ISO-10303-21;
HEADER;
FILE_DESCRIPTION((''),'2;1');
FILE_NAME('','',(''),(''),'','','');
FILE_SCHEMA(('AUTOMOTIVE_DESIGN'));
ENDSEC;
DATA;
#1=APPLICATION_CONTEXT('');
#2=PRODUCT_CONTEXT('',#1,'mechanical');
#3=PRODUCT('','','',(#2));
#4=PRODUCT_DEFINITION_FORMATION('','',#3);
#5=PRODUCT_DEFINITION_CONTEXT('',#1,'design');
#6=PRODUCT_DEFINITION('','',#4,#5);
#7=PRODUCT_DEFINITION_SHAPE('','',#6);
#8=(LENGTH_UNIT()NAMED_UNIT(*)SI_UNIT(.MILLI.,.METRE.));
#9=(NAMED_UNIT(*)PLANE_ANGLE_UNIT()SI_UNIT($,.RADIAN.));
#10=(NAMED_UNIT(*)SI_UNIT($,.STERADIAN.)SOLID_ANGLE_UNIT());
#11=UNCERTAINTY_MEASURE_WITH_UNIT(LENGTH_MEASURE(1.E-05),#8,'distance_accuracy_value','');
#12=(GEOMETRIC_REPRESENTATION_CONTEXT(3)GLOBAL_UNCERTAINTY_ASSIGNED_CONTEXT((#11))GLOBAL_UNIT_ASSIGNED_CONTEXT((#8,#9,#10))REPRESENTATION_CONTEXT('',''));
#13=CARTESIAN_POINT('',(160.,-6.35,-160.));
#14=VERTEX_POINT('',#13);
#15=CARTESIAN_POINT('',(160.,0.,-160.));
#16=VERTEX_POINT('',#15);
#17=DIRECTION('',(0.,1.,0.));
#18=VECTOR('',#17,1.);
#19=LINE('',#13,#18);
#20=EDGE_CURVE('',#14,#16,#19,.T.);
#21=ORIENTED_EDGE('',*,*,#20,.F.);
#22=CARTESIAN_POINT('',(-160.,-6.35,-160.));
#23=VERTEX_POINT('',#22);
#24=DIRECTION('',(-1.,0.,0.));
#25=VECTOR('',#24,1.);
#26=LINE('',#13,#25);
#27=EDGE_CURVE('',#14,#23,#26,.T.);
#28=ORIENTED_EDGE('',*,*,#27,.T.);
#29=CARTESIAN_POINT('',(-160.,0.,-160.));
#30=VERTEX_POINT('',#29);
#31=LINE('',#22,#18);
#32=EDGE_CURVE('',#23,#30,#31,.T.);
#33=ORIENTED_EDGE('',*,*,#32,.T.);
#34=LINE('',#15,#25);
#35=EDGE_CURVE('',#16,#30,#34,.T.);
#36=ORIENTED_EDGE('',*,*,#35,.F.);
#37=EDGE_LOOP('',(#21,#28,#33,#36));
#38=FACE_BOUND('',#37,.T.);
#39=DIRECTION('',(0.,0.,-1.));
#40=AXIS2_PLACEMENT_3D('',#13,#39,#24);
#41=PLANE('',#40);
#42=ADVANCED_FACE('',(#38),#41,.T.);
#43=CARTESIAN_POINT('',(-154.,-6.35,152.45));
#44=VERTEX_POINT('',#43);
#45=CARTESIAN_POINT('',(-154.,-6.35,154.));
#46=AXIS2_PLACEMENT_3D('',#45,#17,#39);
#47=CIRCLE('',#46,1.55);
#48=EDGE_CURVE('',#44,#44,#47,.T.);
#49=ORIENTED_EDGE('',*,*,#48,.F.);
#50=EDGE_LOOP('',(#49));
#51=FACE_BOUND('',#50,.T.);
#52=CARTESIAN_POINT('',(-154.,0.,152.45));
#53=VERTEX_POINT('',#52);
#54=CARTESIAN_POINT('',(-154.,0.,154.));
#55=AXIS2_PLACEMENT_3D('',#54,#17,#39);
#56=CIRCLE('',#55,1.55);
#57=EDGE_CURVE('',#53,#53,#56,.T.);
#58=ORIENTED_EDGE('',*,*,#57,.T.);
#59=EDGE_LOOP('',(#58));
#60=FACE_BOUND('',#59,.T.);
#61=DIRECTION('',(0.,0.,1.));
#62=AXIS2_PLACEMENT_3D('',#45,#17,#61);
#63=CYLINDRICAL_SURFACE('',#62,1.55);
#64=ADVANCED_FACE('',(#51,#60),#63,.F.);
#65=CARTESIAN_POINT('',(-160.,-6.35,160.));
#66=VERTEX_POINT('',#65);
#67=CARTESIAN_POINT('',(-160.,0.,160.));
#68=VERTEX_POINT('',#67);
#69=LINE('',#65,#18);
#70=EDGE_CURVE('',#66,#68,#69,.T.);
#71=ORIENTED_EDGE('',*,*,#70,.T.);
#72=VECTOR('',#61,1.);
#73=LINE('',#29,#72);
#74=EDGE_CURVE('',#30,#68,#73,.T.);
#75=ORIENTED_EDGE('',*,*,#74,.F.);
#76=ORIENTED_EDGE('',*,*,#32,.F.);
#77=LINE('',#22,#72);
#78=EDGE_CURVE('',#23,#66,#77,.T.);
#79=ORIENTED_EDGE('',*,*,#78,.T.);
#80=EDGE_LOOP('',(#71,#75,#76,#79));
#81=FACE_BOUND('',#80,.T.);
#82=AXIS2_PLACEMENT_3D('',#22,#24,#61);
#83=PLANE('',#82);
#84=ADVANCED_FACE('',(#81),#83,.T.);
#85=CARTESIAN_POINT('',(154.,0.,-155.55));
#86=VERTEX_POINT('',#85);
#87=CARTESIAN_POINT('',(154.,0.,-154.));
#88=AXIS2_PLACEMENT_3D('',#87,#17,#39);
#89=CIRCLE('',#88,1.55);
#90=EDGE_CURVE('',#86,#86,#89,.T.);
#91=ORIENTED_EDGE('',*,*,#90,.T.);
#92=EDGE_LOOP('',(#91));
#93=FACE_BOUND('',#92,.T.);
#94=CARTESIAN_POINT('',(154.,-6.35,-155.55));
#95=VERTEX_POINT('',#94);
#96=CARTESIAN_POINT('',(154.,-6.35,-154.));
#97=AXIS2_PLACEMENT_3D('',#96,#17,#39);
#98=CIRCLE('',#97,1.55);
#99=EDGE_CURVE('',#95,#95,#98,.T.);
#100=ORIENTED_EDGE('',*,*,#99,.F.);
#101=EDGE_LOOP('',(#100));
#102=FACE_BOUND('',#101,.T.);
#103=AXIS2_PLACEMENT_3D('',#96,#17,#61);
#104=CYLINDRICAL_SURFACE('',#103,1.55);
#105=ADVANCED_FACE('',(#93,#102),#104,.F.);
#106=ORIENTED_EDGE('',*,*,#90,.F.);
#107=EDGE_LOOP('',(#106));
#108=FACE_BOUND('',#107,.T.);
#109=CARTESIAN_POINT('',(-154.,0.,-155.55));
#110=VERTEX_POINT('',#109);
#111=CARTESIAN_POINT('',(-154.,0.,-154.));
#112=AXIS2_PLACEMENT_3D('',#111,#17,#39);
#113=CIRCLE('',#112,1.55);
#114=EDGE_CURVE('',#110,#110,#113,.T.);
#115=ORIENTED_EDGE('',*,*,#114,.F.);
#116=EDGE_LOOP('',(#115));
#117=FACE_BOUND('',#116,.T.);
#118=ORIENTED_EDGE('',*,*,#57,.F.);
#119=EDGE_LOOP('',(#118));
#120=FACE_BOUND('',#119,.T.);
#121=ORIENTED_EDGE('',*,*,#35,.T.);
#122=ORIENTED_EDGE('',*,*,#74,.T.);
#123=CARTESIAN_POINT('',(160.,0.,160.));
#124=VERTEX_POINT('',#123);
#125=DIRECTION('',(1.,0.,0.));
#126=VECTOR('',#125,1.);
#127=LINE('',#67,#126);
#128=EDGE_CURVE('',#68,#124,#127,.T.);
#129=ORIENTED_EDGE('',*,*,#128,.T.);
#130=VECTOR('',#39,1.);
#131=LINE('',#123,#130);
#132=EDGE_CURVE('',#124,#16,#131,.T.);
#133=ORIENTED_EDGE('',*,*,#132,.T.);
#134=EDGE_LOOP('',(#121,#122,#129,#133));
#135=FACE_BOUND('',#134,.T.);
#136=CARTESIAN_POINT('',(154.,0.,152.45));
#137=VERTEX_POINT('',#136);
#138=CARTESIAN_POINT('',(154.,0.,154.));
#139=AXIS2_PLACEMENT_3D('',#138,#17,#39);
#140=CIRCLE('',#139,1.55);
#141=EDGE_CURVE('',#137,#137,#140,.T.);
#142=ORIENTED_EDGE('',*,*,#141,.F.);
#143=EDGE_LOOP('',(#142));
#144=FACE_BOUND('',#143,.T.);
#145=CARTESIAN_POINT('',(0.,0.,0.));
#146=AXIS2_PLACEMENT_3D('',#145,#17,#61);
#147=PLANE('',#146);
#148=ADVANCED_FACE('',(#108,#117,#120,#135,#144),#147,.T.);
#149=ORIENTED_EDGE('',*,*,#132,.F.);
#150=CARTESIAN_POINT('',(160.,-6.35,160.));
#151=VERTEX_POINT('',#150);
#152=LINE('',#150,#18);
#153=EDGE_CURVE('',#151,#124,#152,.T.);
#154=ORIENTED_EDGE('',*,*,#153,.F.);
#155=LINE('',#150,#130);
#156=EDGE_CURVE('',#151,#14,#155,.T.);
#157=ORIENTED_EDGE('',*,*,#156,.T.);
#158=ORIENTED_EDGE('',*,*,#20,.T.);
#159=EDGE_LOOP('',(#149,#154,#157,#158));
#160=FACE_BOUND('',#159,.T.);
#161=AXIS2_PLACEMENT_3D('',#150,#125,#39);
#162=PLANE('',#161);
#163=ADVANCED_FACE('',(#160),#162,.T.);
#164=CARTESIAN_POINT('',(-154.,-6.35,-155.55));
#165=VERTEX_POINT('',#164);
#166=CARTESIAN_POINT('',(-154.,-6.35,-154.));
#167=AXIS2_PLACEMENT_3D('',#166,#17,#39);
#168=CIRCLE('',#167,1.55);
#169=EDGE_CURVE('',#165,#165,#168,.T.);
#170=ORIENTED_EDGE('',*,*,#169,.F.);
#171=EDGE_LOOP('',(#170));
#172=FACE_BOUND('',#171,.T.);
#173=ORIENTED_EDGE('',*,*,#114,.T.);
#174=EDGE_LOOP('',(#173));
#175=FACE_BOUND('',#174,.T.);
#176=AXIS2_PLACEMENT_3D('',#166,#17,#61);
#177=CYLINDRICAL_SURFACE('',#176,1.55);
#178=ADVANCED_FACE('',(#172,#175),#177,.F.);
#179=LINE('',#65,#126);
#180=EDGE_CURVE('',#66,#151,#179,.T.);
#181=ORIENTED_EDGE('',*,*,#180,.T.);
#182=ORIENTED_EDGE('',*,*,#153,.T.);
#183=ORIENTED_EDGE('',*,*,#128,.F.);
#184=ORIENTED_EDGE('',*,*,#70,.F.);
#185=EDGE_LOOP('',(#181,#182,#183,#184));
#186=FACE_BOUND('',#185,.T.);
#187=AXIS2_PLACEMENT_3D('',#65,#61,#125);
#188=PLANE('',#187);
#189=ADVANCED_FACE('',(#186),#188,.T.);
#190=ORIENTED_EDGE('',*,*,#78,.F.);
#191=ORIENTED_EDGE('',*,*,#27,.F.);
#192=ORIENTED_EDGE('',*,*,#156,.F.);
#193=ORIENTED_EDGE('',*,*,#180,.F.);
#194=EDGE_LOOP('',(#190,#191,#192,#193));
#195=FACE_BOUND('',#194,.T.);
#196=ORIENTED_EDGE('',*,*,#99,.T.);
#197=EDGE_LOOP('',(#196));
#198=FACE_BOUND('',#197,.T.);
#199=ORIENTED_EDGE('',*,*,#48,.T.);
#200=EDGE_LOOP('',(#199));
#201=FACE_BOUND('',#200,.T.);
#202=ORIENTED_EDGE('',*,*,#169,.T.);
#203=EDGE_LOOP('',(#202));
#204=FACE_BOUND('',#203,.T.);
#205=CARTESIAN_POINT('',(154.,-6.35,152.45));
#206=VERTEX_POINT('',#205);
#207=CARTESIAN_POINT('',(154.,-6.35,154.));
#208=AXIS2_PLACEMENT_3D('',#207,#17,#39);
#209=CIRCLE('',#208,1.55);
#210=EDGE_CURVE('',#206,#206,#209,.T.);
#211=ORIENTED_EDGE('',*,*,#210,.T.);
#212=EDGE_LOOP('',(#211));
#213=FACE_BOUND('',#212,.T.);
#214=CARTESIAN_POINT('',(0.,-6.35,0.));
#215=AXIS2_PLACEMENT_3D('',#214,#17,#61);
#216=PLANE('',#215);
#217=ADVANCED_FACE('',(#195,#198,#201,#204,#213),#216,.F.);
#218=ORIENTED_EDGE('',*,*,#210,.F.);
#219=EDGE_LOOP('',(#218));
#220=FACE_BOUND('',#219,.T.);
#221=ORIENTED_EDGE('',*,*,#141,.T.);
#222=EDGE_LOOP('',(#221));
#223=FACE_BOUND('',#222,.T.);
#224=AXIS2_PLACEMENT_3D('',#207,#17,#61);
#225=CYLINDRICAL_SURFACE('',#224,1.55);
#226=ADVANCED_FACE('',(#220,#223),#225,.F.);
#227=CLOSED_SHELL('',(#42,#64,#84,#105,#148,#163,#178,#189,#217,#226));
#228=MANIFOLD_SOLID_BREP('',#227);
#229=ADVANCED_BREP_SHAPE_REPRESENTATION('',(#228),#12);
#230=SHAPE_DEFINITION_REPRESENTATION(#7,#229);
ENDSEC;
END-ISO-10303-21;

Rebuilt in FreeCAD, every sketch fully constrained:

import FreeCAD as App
import Part
import Sketcher

V = App.Vector


def add_polygon(sketch, points):
    """Adds a closed chain of lines whose ends are joined by coincident constraints."""
    first, n = sketch.GeometryCount, len(points)
    for a, b in zip(points, points[1:] + points[:1]):
        sketch.addGeometry(Part.LineSegment(App.Vector(*a, 0), App.Vector(*b, 0)), False)
    for i in range(n):
        sketch.addConstraint(Sketcher.Constraint("Coincident", first + i, 2, first + (i + 1) % n, 1))

doc = App.newDocument("Part")
params = doc.addObject("Spreadsheet::Sheet", "Params")
for row, (alias, value) in enumerate([
    ("sketch1_diameter", "3.1 mm"),
    ("sketch1_width", "320 mm"),
    ("pad1_length", "6.35 mm"),
], start=1):
    params.set(f"A{row}", alias)
    params.set(f"B{row}", "=" + value)
    params.setAlias(f"B{row}", alias)

body = doc.addObject("PartDesign::Body", "Body")

# Sketch on XZ plane
sketch1 = doc.addObject("Sketcher::SketchObject", "Sketch")
body.addObject(sketch1)
sketch1.AttachmentSupport = (doc.XZ_Plane, [""])
sketch1.MapMode = "FlatFace"
add_polygon(sketch1, [(-160, -160), (-160, 160), (160, 160), (160, -160)])  # lines 0-3
sketch1.addGeometry(Part.Circle(V(-154, 154, 0), V(0, 0, 1), 1.6), False)  # 4
sketch1.addGeometry(Part.Circle(V(154, 154, 0), V(0, 0, 1), 1.6), False)  # 5
sketch1.addGeometry(Part.Circle(V(-154, -154, 0), V(0, 0, 1), 1.6), False)  # 6
sketch1.addGeometry(Part.Circle(V(154, -154, 0), V(0, 0, 1), 1.6), False)  # 7
sketch1.addConstraint(Sketcher.Constraint("Vertical", 0))
sketch1.addConstraint(Sketcher.Constraint("Horizontal", 1))
sketch1.addConstraint(Sketcher.Constraint("Vertical", 2))
sketch1.addConstraint(Sketcher.Constraint("Horizontal", 3))
sketch1.addConstraint(Sketcher.Constraint("Equal", 4, 5))
sketch1.addConstraint(Sketcher.Constraint("Equal", 5, 6))
sketch1.addConstraint(Sketcher.Constraint("Equal", 6, 7))
sketch1.addConstraint(Sketcher.Constraint("Symmetric", 5, 3, 6, 3, -1, 1))
sketch1.addConstraint(Sketcher.Constraint("Symmetric", 4, 3, 7, 3, -1, 1))
sketch1.addConstraint(Sketcher.Constraint("Symmetric", 0, 2, 2, 2, -1, 1))
sketch1.addConstraint(Sketcher.Constraint("Symmetric", 4, 3, 5, 3, -2))
sketch1.addConstraint(Sketcher.Constraint("Equal", 3, 0))
sketch1.addConstraint(Sketcher.Constraint("Diameter", 4, 3.1))
sketch1.addConstraint(Sketcher.Constraint("DistanceX", 1, 1, 1, 2, 320.0))
sketch1.addConstraint(Sketcher.Constraint("DistanceX", 4, 3, -1, 1, 154.0))
sketch1.addConstraint(Sketcher.Constraint("DistanceY", -1, 1, 4, 3, 154.0))
sketch1.setExpression("Constraints[16]", "Params.sketch1_diameter")
sketch1.setExpression("Constraints[17]", "Params.sketch1_width")
pad1 = doc.addObject("PartDesign::Pad", "Pad")
body.addObject(pad1)
pad1.Profile = sketch1
pad1.setExpression("Length", "Params.pad1_length")

doc.recompute()
